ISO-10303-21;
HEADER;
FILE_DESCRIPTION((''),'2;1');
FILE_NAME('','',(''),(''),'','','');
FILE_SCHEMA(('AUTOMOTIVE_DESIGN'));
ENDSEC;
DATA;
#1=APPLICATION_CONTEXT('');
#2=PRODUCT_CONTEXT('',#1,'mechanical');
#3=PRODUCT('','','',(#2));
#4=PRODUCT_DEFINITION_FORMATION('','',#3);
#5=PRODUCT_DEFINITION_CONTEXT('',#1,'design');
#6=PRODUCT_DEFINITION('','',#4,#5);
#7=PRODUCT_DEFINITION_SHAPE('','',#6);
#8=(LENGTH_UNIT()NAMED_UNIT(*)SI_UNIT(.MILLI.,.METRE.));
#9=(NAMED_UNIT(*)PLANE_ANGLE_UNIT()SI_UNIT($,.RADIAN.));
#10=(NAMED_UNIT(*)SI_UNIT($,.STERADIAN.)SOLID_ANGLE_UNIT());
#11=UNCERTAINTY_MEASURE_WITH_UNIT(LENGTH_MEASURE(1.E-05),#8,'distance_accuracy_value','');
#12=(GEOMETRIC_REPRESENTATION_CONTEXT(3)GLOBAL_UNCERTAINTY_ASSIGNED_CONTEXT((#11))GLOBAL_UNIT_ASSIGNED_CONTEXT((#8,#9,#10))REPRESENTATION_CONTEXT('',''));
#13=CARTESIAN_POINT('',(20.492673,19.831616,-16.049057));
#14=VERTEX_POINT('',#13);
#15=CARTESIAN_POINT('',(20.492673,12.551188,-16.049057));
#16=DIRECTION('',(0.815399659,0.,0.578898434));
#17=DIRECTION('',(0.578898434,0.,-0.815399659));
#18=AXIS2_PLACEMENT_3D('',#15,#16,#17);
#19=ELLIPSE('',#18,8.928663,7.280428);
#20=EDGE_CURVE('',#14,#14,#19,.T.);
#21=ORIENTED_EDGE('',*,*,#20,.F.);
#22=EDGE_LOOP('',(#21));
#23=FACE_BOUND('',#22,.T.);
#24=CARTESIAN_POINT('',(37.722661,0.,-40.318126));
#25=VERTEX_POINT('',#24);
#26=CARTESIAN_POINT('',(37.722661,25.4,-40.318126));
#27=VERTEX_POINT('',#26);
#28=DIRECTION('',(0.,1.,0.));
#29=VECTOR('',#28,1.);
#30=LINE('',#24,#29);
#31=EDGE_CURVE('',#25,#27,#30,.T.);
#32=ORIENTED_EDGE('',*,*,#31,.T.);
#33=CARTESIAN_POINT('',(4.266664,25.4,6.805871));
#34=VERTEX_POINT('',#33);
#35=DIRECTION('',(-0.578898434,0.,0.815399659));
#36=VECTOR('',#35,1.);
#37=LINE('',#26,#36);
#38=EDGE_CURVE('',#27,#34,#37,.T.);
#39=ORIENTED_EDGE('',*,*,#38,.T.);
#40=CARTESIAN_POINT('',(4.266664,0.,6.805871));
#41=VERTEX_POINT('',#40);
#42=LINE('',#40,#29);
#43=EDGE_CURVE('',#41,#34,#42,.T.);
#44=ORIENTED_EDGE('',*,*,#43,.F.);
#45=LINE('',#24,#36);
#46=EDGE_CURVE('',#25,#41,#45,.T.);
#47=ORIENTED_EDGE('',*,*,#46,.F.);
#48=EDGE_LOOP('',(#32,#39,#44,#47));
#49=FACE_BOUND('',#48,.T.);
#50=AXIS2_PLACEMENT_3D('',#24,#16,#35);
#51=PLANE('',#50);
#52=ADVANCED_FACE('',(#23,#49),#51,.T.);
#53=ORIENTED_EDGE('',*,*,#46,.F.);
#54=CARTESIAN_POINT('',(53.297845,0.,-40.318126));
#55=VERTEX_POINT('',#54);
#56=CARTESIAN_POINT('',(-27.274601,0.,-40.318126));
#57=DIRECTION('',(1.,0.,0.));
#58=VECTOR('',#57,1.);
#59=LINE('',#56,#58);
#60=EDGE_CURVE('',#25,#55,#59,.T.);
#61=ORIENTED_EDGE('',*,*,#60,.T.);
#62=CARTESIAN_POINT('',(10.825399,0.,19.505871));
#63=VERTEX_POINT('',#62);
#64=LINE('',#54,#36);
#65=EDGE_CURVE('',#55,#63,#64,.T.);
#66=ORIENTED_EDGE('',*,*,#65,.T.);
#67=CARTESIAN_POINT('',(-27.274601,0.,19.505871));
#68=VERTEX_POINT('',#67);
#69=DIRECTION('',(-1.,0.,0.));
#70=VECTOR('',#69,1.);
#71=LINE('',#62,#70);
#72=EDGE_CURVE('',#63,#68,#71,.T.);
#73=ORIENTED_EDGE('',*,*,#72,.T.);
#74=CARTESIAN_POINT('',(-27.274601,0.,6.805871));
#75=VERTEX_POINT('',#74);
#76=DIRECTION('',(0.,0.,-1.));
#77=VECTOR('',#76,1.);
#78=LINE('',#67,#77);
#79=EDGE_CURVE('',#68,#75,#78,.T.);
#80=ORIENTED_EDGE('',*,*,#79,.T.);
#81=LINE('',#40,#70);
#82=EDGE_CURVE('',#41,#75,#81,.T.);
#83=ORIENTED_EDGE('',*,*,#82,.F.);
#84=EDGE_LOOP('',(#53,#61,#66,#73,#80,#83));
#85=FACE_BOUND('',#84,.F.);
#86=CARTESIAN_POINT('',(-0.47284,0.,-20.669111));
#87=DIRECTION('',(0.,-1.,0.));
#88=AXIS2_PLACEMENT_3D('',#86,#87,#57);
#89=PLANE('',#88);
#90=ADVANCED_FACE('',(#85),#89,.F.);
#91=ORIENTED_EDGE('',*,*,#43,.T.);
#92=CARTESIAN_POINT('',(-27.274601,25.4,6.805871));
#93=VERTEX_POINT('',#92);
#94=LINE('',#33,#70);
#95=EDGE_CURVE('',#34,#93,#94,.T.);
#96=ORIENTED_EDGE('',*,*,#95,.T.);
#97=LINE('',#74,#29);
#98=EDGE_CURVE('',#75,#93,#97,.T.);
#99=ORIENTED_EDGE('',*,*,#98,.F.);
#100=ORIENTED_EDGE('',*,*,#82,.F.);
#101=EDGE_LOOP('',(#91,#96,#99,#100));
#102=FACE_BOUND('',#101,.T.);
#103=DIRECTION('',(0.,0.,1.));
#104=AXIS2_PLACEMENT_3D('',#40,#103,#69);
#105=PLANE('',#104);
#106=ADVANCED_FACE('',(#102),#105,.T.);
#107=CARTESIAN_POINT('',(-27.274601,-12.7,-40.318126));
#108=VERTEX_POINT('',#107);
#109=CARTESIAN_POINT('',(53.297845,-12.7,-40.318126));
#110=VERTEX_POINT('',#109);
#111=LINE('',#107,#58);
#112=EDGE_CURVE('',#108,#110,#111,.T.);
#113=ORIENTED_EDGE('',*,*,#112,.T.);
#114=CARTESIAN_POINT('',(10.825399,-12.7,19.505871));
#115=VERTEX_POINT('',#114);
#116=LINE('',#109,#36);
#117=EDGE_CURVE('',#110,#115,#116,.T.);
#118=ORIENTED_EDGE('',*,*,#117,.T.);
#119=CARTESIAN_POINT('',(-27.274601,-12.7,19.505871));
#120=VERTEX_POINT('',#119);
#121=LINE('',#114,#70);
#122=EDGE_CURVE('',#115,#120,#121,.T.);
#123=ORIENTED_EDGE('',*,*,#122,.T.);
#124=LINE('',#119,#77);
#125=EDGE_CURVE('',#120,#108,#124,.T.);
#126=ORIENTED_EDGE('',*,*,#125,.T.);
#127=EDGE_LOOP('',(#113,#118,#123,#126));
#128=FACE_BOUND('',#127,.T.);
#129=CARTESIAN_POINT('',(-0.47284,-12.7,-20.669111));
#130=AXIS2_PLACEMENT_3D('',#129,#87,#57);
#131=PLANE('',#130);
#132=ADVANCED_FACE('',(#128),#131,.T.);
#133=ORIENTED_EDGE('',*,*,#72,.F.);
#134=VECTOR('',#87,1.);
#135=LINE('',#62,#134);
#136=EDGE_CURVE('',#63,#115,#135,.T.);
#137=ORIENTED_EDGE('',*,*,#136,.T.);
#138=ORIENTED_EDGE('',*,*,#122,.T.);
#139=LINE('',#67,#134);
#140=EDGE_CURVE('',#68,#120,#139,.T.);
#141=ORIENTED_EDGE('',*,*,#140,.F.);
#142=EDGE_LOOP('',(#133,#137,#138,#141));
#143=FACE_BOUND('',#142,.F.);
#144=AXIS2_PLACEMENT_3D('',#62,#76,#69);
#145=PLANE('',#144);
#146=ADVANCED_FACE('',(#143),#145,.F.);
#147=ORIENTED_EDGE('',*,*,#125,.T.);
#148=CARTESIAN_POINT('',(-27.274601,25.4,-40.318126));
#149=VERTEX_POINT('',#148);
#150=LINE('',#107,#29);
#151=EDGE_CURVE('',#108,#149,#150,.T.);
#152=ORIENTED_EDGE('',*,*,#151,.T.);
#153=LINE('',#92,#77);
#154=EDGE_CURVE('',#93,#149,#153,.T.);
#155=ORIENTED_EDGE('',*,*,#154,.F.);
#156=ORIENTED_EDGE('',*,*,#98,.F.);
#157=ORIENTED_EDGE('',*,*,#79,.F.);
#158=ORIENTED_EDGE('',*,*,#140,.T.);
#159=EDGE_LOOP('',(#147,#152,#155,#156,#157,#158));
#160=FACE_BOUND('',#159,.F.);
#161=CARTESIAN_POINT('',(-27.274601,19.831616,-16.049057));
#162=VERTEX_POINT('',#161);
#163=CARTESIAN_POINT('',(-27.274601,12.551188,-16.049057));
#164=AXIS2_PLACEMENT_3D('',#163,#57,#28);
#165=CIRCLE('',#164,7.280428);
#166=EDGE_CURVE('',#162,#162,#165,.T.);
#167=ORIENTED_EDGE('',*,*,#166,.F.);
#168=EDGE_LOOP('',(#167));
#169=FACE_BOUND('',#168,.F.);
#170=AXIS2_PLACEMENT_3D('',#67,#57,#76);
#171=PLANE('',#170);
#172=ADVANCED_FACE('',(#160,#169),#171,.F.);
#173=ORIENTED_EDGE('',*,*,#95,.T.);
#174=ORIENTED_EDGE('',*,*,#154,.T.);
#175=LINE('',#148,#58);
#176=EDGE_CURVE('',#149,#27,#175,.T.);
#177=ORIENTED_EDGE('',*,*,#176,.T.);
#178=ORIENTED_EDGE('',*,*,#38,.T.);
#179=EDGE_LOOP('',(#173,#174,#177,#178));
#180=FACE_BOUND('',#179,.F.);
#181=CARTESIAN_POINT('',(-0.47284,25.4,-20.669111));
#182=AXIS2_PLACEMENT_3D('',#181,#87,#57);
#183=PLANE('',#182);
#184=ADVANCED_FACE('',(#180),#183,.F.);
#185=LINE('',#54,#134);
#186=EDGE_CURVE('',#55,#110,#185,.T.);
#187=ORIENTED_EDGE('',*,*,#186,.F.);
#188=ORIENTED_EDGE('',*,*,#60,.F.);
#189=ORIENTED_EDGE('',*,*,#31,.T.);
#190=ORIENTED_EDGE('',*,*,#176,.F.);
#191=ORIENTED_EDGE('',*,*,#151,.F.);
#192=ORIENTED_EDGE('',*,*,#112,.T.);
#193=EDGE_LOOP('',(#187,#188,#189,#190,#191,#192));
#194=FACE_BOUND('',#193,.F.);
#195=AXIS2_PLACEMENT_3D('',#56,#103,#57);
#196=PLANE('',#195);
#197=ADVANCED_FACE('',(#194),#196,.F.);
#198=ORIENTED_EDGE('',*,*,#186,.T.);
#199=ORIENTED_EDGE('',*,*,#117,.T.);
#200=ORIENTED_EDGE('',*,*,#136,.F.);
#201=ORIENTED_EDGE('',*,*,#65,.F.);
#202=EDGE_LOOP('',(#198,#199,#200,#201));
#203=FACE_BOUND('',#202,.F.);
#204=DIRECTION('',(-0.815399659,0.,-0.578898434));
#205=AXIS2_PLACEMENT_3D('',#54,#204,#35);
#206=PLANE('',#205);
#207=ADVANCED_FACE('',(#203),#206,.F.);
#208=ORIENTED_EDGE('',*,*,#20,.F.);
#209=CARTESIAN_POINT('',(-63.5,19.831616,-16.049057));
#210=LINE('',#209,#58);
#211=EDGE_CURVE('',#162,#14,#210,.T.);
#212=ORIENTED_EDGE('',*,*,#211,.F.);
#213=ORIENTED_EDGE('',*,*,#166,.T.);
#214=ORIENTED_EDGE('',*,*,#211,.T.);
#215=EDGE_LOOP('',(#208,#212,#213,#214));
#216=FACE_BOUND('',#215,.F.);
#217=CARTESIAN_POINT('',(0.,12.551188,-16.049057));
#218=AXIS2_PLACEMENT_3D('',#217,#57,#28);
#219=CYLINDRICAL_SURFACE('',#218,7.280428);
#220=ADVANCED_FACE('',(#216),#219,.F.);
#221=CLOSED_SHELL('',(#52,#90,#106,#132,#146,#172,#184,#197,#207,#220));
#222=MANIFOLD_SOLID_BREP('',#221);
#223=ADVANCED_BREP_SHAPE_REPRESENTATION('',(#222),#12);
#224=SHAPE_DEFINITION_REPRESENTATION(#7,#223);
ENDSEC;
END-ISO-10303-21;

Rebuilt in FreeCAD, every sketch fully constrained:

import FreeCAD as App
import Part
import Sketcher
from FreeCAD import Vector
Q = App.Units.Quantity


def add_polygon(sketch, points):
    """Adds a closed chain of lines whose ends are joined by coincident constraints."""
    first, n = sketch.GeometryCount, len(points)
    for a, b in zip(points, points[1:] + points[:1]):
        sketch.addGeometry(Part.LineSegment(App.Vector(*a, 0), App.Vector(*b, 0)), False)
    for i in range(n):
        sketch.addConstraint(Sketcher.Constraint("Coincident", first + i, 2, first + (i + 1) % n, 1))

doc = App.newDocument("Part")
body = doc.addObject("PartDesign::Body", "Body")

# Sketch on XZ plane
sketch1 = body.newObject("Sketcher::SketchObject", "Sketch")
sketch1.AttachmentSupport = (doc.getObject("XZ_Plane"), [""])
sketch1.MapMode = "FlatFace"
add_polygon(sketch1, [(-27, 7), (-27, -40), (38, -40), (4, 7)])  # lines 0-3
sketch1.addConstraint([
    Sketcher.Constraint("Vertical", 0),
    Sketcher.Constraint("Horizontal", 1),
    Sketcher.Constraint("Horizontal", 3),
    Sketcher.Constraint("DistanceX", 1, 1, 1, 2, 64.997262),
    Sketcher.Constraint("DistanceX", 0, 2, -1, 1, 27.274601),
    Sketcher.Constraint("DistanceX", 3, 2, 3, 1, 31.541265),
    Sketcher.Constraint("DistanceY", 0, 2, 0, 1, 47.123997),
    Sketcher.Constraint("DistanceY", -1, 1, 2, 2, 6.805871),
])
pad1 = body.newObject("PartDesign::Pad", "Pad")
pad1.Profile = sketch1
pad1.Length = Q("1 in")
pad1.Reversed = True

# Sketch on XZ plane
sketch2 = body.newObject("Sketcher::SketchObject", "Sketch001")
sketch2.AttachmentSupport = (doc.getObject("XZ_Plane"), [""])
sketch2.MapMode = "FlatFace"
add_polygon(sketch2, [(-27, -40), (53, -40), (11, 20), (-27, 20)])  # lines 0-3
sketch2.addConstraint([
    Sketcher.Constraint("Horizontal", 0),
    Sketcher.Constraint("Horizontal", 2),
    Sketcher.Constraint("Vertical", 3),
    Sketcher.Constraint("DistanceX", 2, 2, 2, 1, Q("1.5 in")),
    Sketcher.Constraint("Distance", 1, 73.367699),
    Sketcher.Constraint("DistanceX", -1, 1, 1, 2, 10.825399),
    Sketcher.Constraint("DistanceX", 0, 1, 0, 2, 80.572446),
    Sketcher.Constraint("DistanceY", -1, 1, 1, 2, 19.505871),
])
pad2 = body.newObject("PartDesign::Pad", "Pad001")
pad2.Profile = sketch2
pad2.Length = Q("0.5 in")

# Sketch on YZ plane
sketch3 = body.newObject("Sketcher::SketchObject", "Sketch002")
sketch3.AttachmentSupport = (doc.getObject("YZ_Plane"), [""])
sketch3.MapMode = "FlatFace"
sketch3.addGeometry(Part.Circle(Vector(13, -16, 0), Vector(0, 0, 1), 7), False)
sketch3.addConstraint([
    Sketcher.Constraint("Diameter", 0, 14.560857),
    Sketcher.Constraint("DistanceX", -1, 1, 0, 3, 12.551188),
    Sketcher.Constraint("DistanceY", 0, 3, -1, 1, 16.049057),
])
pocket1 = body.newObject("PartDesign::Pocket", "Pocket")
pocket1.Profile = sketch3
pocket1.Length = Q("5 in")
pocket1.Midplane = True

doc.recompute()
